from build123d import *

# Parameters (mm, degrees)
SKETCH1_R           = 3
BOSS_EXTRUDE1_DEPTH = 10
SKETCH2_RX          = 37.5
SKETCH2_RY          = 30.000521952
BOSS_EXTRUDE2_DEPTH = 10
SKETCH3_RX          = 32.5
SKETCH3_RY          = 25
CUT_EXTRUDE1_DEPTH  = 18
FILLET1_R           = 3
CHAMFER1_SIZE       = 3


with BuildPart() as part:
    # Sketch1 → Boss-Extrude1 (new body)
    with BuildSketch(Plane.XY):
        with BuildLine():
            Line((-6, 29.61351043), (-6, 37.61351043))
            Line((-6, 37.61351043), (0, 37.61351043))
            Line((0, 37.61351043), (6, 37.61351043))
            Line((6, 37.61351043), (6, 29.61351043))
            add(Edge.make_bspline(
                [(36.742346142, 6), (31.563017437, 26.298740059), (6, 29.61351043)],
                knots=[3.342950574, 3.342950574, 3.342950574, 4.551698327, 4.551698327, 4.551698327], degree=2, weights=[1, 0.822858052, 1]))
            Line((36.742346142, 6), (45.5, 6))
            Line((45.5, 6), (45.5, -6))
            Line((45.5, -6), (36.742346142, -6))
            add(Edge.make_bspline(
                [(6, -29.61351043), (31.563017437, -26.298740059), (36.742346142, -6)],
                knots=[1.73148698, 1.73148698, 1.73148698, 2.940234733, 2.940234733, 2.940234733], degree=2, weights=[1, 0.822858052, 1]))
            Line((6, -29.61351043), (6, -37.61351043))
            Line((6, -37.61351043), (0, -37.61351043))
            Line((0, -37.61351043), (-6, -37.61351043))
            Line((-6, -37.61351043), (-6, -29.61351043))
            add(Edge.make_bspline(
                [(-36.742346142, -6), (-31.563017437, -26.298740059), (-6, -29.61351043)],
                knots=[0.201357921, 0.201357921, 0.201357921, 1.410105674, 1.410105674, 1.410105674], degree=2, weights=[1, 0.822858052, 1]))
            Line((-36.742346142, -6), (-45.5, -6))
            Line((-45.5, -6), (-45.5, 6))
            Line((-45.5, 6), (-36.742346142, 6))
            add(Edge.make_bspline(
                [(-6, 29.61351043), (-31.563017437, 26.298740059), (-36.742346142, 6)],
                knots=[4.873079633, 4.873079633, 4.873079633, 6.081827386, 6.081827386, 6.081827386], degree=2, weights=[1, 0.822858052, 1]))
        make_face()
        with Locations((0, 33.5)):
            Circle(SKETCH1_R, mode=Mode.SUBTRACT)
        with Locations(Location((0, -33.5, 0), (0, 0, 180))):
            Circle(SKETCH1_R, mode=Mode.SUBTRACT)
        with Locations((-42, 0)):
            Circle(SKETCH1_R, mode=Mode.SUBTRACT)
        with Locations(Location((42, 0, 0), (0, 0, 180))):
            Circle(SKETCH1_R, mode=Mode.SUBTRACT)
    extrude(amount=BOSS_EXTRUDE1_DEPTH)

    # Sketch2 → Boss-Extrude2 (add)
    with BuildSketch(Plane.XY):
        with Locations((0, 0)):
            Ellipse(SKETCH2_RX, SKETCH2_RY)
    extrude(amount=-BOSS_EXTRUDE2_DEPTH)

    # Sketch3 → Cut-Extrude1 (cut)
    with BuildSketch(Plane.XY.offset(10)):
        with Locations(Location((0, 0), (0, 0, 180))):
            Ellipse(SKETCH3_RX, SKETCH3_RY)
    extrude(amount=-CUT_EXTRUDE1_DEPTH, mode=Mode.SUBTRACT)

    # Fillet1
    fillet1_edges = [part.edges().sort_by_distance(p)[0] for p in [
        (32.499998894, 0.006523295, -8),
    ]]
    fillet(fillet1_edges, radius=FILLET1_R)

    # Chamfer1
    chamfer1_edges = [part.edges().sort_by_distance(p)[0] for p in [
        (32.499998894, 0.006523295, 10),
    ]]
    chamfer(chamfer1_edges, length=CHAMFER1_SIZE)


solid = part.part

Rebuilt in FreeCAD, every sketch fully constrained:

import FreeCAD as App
import Part
import Sketcher


def edges_at(feature, points):
    """Names of the edges that pass closest to the given points."""
    edges = feature.Shape.Edges
    near = lambda p: min(range(len(edges)), key=lambda i: edges[i].distToShape(Part.Vertex(*p))[0])
    return sorted({f"Edge{near(p) + 1}" for p in points})

doc = App.newDocument("Part")
body = doc.addObject("PartDesign::Body", "Body")

sketch1 = body.newObject("Sketcher::SketchObject", "Sketch")
sketch1.AttachmentSupport = (doc.getObject("XY_Plane"), [""])
sketch1.MapMode = "FlatFace"
sketch1.addGeometry(Part.LineSegment(App.Vector(-6, 37.61351, 0), App.Vector(-6, 29.61351, 0)), False)
sketch1.addGeometry(Part.BSplineCurve([App.Vector(-6, 29.61351, 0), App.Vector(-31.563017, 26.29874, 0), App.Vector(-36.742346, 6, 0)], [3, 3], [4.873079633, 6.081827386], False, 2, [1, 0.822858052, 1], False), False)
sketch1.addGeometry(Part.LineSegment(App.Vector(-36.742346, 6, 0), App.Vector(-45.5, 6, 0)), False)
sketch1.addGeometry(Part.LineSegment(App.Vector(-45.5, 6, 0), App.Vector(-45.5, -6, 0)), False)
sketch1.addGeometry(Part.LineSegment(App.Vector(-45.5, -6, 0), App.Vector(-36.742346, -6, 0)), False)
sketch1.addGeometry(Part.BSplineCurve([App.Vector(-36.742346, -6, 0), App.Vector(-31.563017, -26.29874, 0), App.Vector(-6, -29.61351, 0)], [3, 3], [0.201357921, 1.410105674], False, 2, [1, 0.822858052, 1], False), False)
sketch1.addGeometry(Part.LineSegment(App.Vector(-6, -29.61351, 0), App.Vector(-6, -37.61351, 0)), False)
sketch1.addGeometry(Part.LineSegment(App.Vector(-6, -37.61351, 0), App.Vector(6, -37.61351, 0)), False)
sketch1.addGeometry(Part.LineSegment(App.Vector(6, -37.61351, 0), App.Vector(6, -29.61351, 0)), False)
sketch1.addGeometry(Part.BSplineCurve([App.Vector(6, -29.61351, 0), App.Vector(31.563017, -26.29874, 0), App.Vector(36.742346, -6, 0)], [3, 3], [1.73148698, 2.940234733], False, 2, [1, 0.822858052, 1], False), False)
sketch1.addGeometry(Part.LineSegment(App.Vector(36.742346, -6, 0), App.Vector(45.5, -6, 0)), False)
sketch1.addGeometry(Part.LineSegment(App.Vector(45.5, -6, 0), App.Vector(45.5, 6, 0)), False)
sketch1.addGeometry(Part.LineSegment(App.Vector(45.5, 6, 0), App.Vector(36.742346, 6, 0)), False)
sketch1.addGeometry(Part.BSplineCurve([App.Vector(36.742346, 6, 0), App.Vector(31.563017, 26.29874, 0), App.Vector(6, 29.61351, 0)], [3, 3], [3.342950574, 4.551698327], False, 2, [1, 0.822858052, 1], False), False)
sketch1.addGeometry(Part.LineSegment(App.Vector(6, 29.61351, 0), App.Vector(6, 37.61351, 0)), False)
sketch1.addGeometry(Part.LineSegment(App.Vector(6, 37.61351, 0), App.Vector(-6, 37.61351, 0)), False)
sketch1.addGeometry(Part.Circle(App.Vector(0, -33.5, 0), App.Vector(0, 0, 1), 3), False)
sketch1.addGeometry(Part.Circle(App.Vector(42, 0, 0), App.Vector(0, 0, 1), 3), False)
sketch1.addGeometry(Part.Circle(App.Vector(-42, 0, 0), App.Vector(0, 0, 1), 3), False)
sketch1.addGeometry(Part.Circle(App.Vector(0, 33.5, 0), App.Vector(0, 0, 1), 3), False)
sketch1.addConstraint(Sketcher.Constraint("Block", 1))
sketch1.addConstraint(Sketcher.Constraint("Block", 5))
sketch1.addConstraint(Sketcher.Constraint("Block", 9))
sketch1.addConstraint(Sketcher.Constraint("Block", 13))
sketch1.addConstraint(Sketcher.Constraint("Coincident", 0, 2, 1, 1))
sketch1.addConstraint(Sketcher.Constraint("Coincident", 1, 2, 2, 1))
sketch1.addConstraint(Sketcher.Constraint("Coincident", 2, 2, 3, 1))
sketch1.addConstraint(Sketcher.Constraint("Coincident", 3, 2, 4, 1))
sketch1.addConstraint(Sketcher.Constraint("Coincident", 4, 2, 5, 1))
sketch1.addConstraint(Sketcher.Constraint("Coincident", 5, 2, 6, 1))
sketch1.addConstraint(Sketcher.Constraint("Coincident", 6, 2, 7, 1))
sketch1.addConstraint(Sketcher.Constraint("Coincident", 7, 2, 8, 1))
sketch1.addConstraint(Sketcher.Constraint("Coincident", 8, 2, 9, 1))
sketch1.addConstraint(Sketcher.Constraint("Coincident", 9, 2, 10, 1))
sketch1.addConstraint(Sketcher.Constraint("Coincident", 10, 2, 11, 1))
sketch1.addConstraint(Sketcher.Constraint("Coincident", 11, 2, 12, 1))
sketch1.addConstraint(Sketcher.Constraint("Coincident", 12, 2, 13, 1))
sketch1.addConstraint(Sketcher.Constraint("Coincident", 13, 2, 14, 1))
sketch1.addConstraint(Sketcher.Constraint("Coincident", 14, 2, 15, 1))
sketch1.addConstraint(Sketcher.Constraint("Coincident", 15, 2, 0, 1))
sketch1.addConstraint(Sketcher.Constraint("Vertical", 0))
sketch1.addConstraint(Sketcher.Constraint("Horizontal", 2))
sketch1.addConstraint(Sketcher.Constraint("Vertical", 3))
sketch1.addConstraint(Sketcher.Constraint("Horizontal", 4))
sketch1.addConstraint(Sketcher.Constraint("Vertical", 6))
sketch1.addConstraint(Sketcher.Constraint("Horizontal", 7))
sketch1.addConstraint(Sketcher.Constraint("Vertical", 8))
sketch1.addConstraint(Sketcher.Constraint("Horizontal", 10))
sketch1.addConstraint(Sketcher.Constraint("Vertical", 11))
sketch1.addConstraint(Sketcher.Constraint("Horizontal", 12))
sketch1.addConstraint(Sketcher.Constraint("Vertical", 14))
sketch1.addConstraint(Sketcher.Constraint("Horizontal", 15))
sketch1.addConstraint(Sketcher.Constraint("Equal", 16, 17))
sketch1.addConstraint(Sketcher.Constraint("Equal", 17, 18))
sketch1.addConstraint(Sketcher.Constraint("Equal", 18, 19))
sketch1.addConstraint(Sketcher.Constraint("Symmetric", 17, 3, 18, 3, -1, 1))
sketch1.addConstraint(Sketcher.Constraint("Symmetric", 16, 3, 19, 3, -1, 1))
sketch1.addConstraint(Sketcher.Constraint("PointOnObject", 16, 3, -2))
sketch1.addConstraint(Sketcher.Constraint("PointOnObject", 17, 3, -1))
sketch1.addConstraint(Sketcher.Constraint("Equal", 4, 10))
sketch1.addConstraint(Sketcher.Constraint("Equal", 0, 6))
sketch1.addConstraint(Sketcher.Constraint("Diameter", 16, 6.0))
sketch1.addConstraint(Sketcher.Constraint("DistanceY", 0, 2, 0, 1, 8.0))
sketch1.addConstraint(Sketcher.Constraint("DistanceX", -1, 1, 17, 3, 42.0))
sketch1.addConstraint(Sketcher.Constraint("DistanceY", 16, 3, 19, 3, 67.0))
sketch1.addConstraint(Sketcher.Constraint("DistanceX", 2, 2, -1, 1, 45.5))
pad1 = body.newObject("PartDesign::Pad", "Pad")
pad1.Profile = sketch1
pad1.Length = 10

sketch2 = body.newObject("Sketcher::SketchObject", "Sketch001")
sketch2.AttachmentSupport = (doc.getObject("XY_Plane"), [""])
sketch2.MapMode = "FlatFace"
sketch2.addGeometry(Part.Ellipse(App.Vector(37.5, 0, 0), App.Vector(0, 30.000522, 0), App.Vector(0, 0, 0)), False)
sketch2.addConstraint(Sketcher.Constraint("Block", 0))
pad2 = body.newObject("PartDesign::Pad", "Pad001")
pad2.Profile = sketch2
pad2.Length = 10
pad2.Reversed = True

sketch3 = body.newObject("Sketcher::SketchObject", "Sketch002")
sketch3.AttachmentSupport = (doc.getObject("XY_Plane"), [""])
sketch3.MapMode = "FlatFace"
sketch3.AttachmentOffset = App.Placement(App.Vector(0, 0, 10), App.Rotation())
sketch3.addGeometry(Part.Ellipse(App.Vector(-32.5, 0, 0), App.Vector(0, -25, 0), App.Vector(0, 0, 0)), False)
sketch3.addConstraint(Sketcher.Constraint("Block", 0))
pocket1 = body.newObject("PartDesign::Pocket", "Pocket")
pocket1.Profile = sketch3
pocket1.Length = 18
doc.recompute()

fillet = body.newObject("PartDesign::Fillet", "Fillet")
fillet.Base = (pocket1, edges_at(pocket1, [(32.5, 0.007, -8)]))
fillet.Radius = 3
doc.recompute()

chamfer = body.newObject("PartDesign::Chamfer", "Chamfer")
chamfer.Base = (fillet, edges_at(fillet, [(32.5, 0.007, 10)]))
chamfer.Size = 3

doc.recompute()
